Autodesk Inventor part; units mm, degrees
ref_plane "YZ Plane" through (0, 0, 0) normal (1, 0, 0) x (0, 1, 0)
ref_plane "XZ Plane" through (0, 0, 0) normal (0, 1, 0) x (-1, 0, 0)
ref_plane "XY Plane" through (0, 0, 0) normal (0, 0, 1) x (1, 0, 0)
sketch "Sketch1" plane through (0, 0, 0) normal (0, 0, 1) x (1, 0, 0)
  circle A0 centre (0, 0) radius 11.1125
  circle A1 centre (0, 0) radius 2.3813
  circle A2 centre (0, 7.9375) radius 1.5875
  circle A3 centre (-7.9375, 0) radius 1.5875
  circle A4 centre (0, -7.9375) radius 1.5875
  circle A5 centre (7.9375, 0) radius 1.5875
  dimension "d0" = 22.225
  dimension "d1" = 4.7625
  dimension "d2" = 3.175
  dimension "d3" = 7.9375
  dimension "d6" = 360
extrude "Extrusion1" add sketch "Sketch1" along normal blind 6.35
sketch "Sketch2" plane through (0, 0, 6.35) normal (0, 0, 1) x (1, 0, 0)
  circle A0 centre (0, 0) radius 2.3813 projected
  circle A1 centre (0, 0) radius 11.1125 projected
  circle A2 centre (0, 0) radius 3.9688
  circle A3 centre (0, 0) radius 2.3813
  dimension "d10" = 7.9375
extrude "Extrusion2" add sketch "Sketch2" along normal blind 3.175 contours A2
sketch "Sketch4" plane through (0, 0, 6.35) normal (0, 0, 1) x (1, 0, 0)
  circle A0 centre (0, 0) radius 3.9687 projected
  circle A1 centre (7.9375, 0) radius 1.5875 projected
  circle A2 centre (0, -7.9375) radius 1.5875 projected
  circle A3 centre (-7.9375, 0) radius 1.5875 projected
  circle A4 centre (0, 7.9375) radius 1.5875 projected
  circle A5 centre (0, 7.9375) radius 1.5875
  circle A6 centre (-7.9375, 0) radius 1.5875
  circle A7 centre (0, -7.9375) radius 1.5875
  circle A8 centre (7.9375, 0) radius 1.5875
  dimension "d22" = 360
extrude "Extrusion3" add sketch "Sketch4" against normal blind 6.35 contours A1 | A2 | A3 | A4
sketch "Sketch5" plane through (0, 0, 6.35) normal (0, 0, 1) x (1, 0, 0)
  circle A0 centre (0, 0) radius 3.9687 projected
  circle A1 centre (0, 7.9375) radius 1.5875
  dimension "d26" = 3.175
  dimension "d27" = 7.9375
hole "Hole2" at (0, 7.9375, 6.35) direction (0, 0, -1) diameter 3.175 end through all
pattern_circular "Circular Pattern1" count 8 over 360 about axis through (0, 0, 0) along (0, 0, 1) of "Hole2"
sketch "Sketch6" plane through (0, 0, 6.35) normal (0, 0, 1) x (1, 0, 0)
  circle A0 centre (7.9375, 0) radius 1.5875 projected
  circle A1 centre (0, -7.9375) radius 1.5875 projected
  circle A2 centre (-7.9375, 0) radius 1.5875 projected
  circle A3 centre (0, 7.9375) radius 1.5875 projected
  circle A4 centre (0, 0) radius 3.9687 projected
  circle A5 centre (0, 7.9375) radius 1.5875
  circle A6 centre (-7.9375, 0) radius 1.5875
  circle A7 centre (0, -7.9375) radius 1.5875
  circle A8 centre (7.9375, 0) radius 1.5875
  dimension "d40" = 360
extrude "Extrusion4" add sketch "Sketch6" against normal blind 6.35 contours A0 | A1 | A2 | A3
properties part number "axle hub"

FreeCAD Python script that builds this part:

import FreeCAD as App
import Part
import Sketcher
from FreeCAD import Vector
Q = App.Units.Quantity

doc = App.newDocument("Part")
body = doc.addObject("PartDesign::Body", "Body")

# Sketch on XY plane
sketch1 = doc.addObject("Sketcher::SketchObject", "Sketch")
body.addObject(sketch1)
sketch1.AttachmentSupport = (doc.XY_Plane, [""])
sketch1.MapMode = "FlatFace"
sketch1.addGeometry([
    Part.Circle(Vector(0, 0, 0), Vector(0, 0, 1), 11.1),  # 0
    Part.Circle(Vector(0, -7.9, 0), Vector(0, 0, 1), 1.6),  # 1
    Part.Circle(Vector(-7.9, 0, 0), Vector(0, 0, 1), 1.6),  # 2
    Part.Circle(Vector(0, 0, 0), Vector(0, 0, 1), 2.4),  # 3
    Part.Circle(Vector(7.9, 0, 0), Vector(0, 0, 1), 1.6),  # 4
    Part.Circle(Vector(0, 7.9, 0), Vector(0, 0, 1), 1.6),  # 5
], False)
sketch1.addConstraint([
    Sketcher.Constraint("Coincident", 0, 3, -1, 1),
    Sketcher.Constraint("Coincident", 3, 3, -1, 1),
    Sketcher.Constraint("Equal", 1, 2),
    Sketcher.Constraint("Equal", 2, 4),
    Sketcher.Constraint("Equal", 4, 5),
    Sketcher.Constraint("Symmetric", 2, 3, 4, 3, -1, 1),
    Sketcher.Constraint("Symmetric", 1, 3, 5, 3, -1, 1),
    Sketcher.Constraint("PointOnObject", 1, 3, -2),
    Sketcher.Constraint("PointOnObject", 2, 3, -1),
    Sketcher.Constraint("Diameter", 0, Q("0.875 in")),
    Sketcher.Constraint("Diameter", 1, Q("0.125 in")),
    Sketcher.Constraint("Diameter", 3, Q("0.1875 in")),
    Sketcher.Constraint("DistanceY", 1, 3, -1, 1, Q("0.3125 in")),
    Sketcher.Constraint("DistanceX", 2, 3, -1, 1, Q("0.3125 in")),
])
pad1 = doc.addObject("PartDesign::Pad", "Pad")
body.addObject(pad1)
pad1.Profile = sketch1
pad1.Length = Q("0.25 in")

# Sketch on XY plane
sketch2 = doc.addObject("Sketcher::SketchObject", "Sketch001")
body.addObject(sketch2)
sketch2.AttachmentSupport = (doc.XY_Plane, [""])
sketch2.MapMode = "FlatFace"
sketch2.AttachmentOffset = App.Placement(Vector(0, 0, 0.25 * 25.4), App.Rotation())
sketch2.addGeometry([
    Part.Circle(Vector(0, 0, 0), Vector(0, 0, 1), 4),
    Part.Circle(Vector(0, 0, 0), Vector(0, 0, 1), 2.4),
], False)
sketch2.addConstraint([
    Sketcher.Constraint("Coincident", 0, 3, -1, 1),
    Sketcher.Constraint("Coincident", 1, 3, -1, 1),
    Sketcher.Constraint("Diameter", 0, Q("0.3125 in")),
    Sketcher.Constraint("Diameter", 1, Q("0.1875 in")),
])
pad2 = doc.addObject("PartDesign::Pad", "Pad001")
body.addObject(pad2)
pad2.Profile = sketch2
pad2.Length = Q("0.125 in")

# Sketch on XY plane
sketch3 = doc.addObject("Sketcher::SketchObject", "Sketch002")
body.addObject(sketch3)
sketch3.AttachmentSupport = (doc.XY_Plane, [""])
sketch3.MapMode = "FlatFace"
sketch3.AttachmentOffset = App.Placement(Vector(0, 0, 0.25 * 25.4), App.Rotation())
sketch3.addGeometry([
    Part.Circle(Vector(7.9, 0, 0), Vector(0, 0, 1), 1.6),
    Part.Circle(Vector(0, -7.9, 0), Vector(0, 0, 1), 1.6),
    Part.Circle(Vector(-7.9, 0, 0), Vector(0, 0, 1), 1.6),
    Part.Circle(Vector(0, 7.9, 0), Vector(0, 0, 1), 1.6),
], False)
sketch3.addConstraint([
    Sketcher.Constraint("Equal", 0, 1),
    Sketcher.Constraint("Equal", 1, 2),
    Sketcher.Constraint("Equal", 2, 3),
    Sketcher.Constraint("Symmetric", 0, 3, 2, 3, -1, 1),
    Sketcher.Constraint("Symmetric", 1, 3, 3, 3, -1, 1),
    Sketcher.Constraint("PointOnObject", 0, 3, -1),
    Sketcher.Constraint("PointOnObject", 1, 3, -2),
    Sketcher.Constraint("Diameter", 0, Q("0.125 in")),
    Sketcher.Constraint("DistanceX", -1, 1, 0, 3, Q("0.3125 in")),
    Sketcher.Constraint("DistanceY", 1, 3, -1, 1, Q("0.3125 in")),
])
pad3 = doc.addObject("PartDesign::Pad", "Pad002")
body.addObject(pad3)
pad3.Profile = sketch3
pad3.Length = Q("0.25 in")
pad3.Reversed = True

# Sketch on XY plane
sketch4 = doc.addObject("Sketcher::SketchObject", "Sketch003")
body.addObject(sketch4)
sketch4.AttachmentSupport = (doc.XY_Plane, [""])
sketch4.MapMode = "FlatFace"
sketch4.AttachmentOffset = App.Placement(Vector(0, 0, 0.25 * 25.4), App.Rotation())
sketch4.addGeometry(Part.Circle(Vector(0, 7.9, 0), Vector(0, 0, 1), 1.6), False)
sketch4.addConstraint([
    Sketcher.Constraint("PointOnObject", 0, 3, -2),
    Sketcher.Constraint("Diameter", 0, Q("0.125 in")),
    Sketcher.Constraint("DistanceY", -1, 1, 0, 3, Q("0.3125 in")),
])
doc.recompute()
hole = doc.addObject("PartDesign::Hole", "Hole")
body.addObject(hole)
hole.Profile = sketch4
hole.ThreadType = "None"
hole.Diameter = Q("0.125 in")
hole.DepthType = "ThroughAll"
doc.recompute()

polarpattern = doc.addObject("PartDesign::PolarPattern", "PolarPattern")
body.addObject(polarpattern)
polarpattern.Originals = [hole]
polarpattern.Axis = (doc.Z_Axis, [""])
polarpattern.Angle = 360
polarpattern.Occurrences = 8
body.Tip = polarpattern

# Sketch on XY plane
sketch5 = doc.addObject("Sketcher::SketchObject", "Sketch004")
body.addObject(sketch5)
sketch5.AttachmentSupport = (doc.XY_Plane, [""])
sketch5.MapMode = "FlatFace"
sketch5.AttachmentOffset = App.Placement(Vector(0, 0, 0.25 * 25.4), App.Rotation())
sketch5.addGeometry([
    Part.Circle(Vector(7.9, 0, 0), Vector(0, 0, 1), 1.6),
    Part.Circle(Vector(0, -7.9, 0), Vector(0, 0, 1), 1.6),
    Part.Circle(Vector(-7.9, 0, 0), Vector(0, 0, 1), 1.6),
    Part.Circle(Vector(0, 7.9, 0), Vector(0, 0, 1), 1.6),
], False)
sketch5.addConstraint([
    Sketcher.Constraint("Equal", 0, 1),
    Sketcher.Constraint("Equal", 1, 2),
    Sketcher.Constraint("Equal", 2, 3),
    Sketcher.Constraint("Symmetric", 0, 3, 2, 3, -1, 1),
    Sketcher.Constraint("Symmetric", 1, 3, 3, 3, -1, 1),
    Sketcher.Constraint("PointOnObject", 0, 3, -1),
    Sketcher.Constraint("PointOnObject", 1, 3, -2),
    Sketcher.Constraint("Diameter", 0, Q("0.125 in")),
    Sketcher.Constraint("DistanceX", -1, 1, 0, 3, Q("0.3125 in")),
    Sketcher.Constraint("DistanceY", 1, 3, -1, 1, Q("0.3125 in")),
])
pad4 = doc.addObject("PartDesign::Pad", "Pad003")
body.addObject(pad4)
pad4.Profile = sketch5
pad4.Length = Q("0.25 in")
pad4.Reversed = True

doc.recompute()
